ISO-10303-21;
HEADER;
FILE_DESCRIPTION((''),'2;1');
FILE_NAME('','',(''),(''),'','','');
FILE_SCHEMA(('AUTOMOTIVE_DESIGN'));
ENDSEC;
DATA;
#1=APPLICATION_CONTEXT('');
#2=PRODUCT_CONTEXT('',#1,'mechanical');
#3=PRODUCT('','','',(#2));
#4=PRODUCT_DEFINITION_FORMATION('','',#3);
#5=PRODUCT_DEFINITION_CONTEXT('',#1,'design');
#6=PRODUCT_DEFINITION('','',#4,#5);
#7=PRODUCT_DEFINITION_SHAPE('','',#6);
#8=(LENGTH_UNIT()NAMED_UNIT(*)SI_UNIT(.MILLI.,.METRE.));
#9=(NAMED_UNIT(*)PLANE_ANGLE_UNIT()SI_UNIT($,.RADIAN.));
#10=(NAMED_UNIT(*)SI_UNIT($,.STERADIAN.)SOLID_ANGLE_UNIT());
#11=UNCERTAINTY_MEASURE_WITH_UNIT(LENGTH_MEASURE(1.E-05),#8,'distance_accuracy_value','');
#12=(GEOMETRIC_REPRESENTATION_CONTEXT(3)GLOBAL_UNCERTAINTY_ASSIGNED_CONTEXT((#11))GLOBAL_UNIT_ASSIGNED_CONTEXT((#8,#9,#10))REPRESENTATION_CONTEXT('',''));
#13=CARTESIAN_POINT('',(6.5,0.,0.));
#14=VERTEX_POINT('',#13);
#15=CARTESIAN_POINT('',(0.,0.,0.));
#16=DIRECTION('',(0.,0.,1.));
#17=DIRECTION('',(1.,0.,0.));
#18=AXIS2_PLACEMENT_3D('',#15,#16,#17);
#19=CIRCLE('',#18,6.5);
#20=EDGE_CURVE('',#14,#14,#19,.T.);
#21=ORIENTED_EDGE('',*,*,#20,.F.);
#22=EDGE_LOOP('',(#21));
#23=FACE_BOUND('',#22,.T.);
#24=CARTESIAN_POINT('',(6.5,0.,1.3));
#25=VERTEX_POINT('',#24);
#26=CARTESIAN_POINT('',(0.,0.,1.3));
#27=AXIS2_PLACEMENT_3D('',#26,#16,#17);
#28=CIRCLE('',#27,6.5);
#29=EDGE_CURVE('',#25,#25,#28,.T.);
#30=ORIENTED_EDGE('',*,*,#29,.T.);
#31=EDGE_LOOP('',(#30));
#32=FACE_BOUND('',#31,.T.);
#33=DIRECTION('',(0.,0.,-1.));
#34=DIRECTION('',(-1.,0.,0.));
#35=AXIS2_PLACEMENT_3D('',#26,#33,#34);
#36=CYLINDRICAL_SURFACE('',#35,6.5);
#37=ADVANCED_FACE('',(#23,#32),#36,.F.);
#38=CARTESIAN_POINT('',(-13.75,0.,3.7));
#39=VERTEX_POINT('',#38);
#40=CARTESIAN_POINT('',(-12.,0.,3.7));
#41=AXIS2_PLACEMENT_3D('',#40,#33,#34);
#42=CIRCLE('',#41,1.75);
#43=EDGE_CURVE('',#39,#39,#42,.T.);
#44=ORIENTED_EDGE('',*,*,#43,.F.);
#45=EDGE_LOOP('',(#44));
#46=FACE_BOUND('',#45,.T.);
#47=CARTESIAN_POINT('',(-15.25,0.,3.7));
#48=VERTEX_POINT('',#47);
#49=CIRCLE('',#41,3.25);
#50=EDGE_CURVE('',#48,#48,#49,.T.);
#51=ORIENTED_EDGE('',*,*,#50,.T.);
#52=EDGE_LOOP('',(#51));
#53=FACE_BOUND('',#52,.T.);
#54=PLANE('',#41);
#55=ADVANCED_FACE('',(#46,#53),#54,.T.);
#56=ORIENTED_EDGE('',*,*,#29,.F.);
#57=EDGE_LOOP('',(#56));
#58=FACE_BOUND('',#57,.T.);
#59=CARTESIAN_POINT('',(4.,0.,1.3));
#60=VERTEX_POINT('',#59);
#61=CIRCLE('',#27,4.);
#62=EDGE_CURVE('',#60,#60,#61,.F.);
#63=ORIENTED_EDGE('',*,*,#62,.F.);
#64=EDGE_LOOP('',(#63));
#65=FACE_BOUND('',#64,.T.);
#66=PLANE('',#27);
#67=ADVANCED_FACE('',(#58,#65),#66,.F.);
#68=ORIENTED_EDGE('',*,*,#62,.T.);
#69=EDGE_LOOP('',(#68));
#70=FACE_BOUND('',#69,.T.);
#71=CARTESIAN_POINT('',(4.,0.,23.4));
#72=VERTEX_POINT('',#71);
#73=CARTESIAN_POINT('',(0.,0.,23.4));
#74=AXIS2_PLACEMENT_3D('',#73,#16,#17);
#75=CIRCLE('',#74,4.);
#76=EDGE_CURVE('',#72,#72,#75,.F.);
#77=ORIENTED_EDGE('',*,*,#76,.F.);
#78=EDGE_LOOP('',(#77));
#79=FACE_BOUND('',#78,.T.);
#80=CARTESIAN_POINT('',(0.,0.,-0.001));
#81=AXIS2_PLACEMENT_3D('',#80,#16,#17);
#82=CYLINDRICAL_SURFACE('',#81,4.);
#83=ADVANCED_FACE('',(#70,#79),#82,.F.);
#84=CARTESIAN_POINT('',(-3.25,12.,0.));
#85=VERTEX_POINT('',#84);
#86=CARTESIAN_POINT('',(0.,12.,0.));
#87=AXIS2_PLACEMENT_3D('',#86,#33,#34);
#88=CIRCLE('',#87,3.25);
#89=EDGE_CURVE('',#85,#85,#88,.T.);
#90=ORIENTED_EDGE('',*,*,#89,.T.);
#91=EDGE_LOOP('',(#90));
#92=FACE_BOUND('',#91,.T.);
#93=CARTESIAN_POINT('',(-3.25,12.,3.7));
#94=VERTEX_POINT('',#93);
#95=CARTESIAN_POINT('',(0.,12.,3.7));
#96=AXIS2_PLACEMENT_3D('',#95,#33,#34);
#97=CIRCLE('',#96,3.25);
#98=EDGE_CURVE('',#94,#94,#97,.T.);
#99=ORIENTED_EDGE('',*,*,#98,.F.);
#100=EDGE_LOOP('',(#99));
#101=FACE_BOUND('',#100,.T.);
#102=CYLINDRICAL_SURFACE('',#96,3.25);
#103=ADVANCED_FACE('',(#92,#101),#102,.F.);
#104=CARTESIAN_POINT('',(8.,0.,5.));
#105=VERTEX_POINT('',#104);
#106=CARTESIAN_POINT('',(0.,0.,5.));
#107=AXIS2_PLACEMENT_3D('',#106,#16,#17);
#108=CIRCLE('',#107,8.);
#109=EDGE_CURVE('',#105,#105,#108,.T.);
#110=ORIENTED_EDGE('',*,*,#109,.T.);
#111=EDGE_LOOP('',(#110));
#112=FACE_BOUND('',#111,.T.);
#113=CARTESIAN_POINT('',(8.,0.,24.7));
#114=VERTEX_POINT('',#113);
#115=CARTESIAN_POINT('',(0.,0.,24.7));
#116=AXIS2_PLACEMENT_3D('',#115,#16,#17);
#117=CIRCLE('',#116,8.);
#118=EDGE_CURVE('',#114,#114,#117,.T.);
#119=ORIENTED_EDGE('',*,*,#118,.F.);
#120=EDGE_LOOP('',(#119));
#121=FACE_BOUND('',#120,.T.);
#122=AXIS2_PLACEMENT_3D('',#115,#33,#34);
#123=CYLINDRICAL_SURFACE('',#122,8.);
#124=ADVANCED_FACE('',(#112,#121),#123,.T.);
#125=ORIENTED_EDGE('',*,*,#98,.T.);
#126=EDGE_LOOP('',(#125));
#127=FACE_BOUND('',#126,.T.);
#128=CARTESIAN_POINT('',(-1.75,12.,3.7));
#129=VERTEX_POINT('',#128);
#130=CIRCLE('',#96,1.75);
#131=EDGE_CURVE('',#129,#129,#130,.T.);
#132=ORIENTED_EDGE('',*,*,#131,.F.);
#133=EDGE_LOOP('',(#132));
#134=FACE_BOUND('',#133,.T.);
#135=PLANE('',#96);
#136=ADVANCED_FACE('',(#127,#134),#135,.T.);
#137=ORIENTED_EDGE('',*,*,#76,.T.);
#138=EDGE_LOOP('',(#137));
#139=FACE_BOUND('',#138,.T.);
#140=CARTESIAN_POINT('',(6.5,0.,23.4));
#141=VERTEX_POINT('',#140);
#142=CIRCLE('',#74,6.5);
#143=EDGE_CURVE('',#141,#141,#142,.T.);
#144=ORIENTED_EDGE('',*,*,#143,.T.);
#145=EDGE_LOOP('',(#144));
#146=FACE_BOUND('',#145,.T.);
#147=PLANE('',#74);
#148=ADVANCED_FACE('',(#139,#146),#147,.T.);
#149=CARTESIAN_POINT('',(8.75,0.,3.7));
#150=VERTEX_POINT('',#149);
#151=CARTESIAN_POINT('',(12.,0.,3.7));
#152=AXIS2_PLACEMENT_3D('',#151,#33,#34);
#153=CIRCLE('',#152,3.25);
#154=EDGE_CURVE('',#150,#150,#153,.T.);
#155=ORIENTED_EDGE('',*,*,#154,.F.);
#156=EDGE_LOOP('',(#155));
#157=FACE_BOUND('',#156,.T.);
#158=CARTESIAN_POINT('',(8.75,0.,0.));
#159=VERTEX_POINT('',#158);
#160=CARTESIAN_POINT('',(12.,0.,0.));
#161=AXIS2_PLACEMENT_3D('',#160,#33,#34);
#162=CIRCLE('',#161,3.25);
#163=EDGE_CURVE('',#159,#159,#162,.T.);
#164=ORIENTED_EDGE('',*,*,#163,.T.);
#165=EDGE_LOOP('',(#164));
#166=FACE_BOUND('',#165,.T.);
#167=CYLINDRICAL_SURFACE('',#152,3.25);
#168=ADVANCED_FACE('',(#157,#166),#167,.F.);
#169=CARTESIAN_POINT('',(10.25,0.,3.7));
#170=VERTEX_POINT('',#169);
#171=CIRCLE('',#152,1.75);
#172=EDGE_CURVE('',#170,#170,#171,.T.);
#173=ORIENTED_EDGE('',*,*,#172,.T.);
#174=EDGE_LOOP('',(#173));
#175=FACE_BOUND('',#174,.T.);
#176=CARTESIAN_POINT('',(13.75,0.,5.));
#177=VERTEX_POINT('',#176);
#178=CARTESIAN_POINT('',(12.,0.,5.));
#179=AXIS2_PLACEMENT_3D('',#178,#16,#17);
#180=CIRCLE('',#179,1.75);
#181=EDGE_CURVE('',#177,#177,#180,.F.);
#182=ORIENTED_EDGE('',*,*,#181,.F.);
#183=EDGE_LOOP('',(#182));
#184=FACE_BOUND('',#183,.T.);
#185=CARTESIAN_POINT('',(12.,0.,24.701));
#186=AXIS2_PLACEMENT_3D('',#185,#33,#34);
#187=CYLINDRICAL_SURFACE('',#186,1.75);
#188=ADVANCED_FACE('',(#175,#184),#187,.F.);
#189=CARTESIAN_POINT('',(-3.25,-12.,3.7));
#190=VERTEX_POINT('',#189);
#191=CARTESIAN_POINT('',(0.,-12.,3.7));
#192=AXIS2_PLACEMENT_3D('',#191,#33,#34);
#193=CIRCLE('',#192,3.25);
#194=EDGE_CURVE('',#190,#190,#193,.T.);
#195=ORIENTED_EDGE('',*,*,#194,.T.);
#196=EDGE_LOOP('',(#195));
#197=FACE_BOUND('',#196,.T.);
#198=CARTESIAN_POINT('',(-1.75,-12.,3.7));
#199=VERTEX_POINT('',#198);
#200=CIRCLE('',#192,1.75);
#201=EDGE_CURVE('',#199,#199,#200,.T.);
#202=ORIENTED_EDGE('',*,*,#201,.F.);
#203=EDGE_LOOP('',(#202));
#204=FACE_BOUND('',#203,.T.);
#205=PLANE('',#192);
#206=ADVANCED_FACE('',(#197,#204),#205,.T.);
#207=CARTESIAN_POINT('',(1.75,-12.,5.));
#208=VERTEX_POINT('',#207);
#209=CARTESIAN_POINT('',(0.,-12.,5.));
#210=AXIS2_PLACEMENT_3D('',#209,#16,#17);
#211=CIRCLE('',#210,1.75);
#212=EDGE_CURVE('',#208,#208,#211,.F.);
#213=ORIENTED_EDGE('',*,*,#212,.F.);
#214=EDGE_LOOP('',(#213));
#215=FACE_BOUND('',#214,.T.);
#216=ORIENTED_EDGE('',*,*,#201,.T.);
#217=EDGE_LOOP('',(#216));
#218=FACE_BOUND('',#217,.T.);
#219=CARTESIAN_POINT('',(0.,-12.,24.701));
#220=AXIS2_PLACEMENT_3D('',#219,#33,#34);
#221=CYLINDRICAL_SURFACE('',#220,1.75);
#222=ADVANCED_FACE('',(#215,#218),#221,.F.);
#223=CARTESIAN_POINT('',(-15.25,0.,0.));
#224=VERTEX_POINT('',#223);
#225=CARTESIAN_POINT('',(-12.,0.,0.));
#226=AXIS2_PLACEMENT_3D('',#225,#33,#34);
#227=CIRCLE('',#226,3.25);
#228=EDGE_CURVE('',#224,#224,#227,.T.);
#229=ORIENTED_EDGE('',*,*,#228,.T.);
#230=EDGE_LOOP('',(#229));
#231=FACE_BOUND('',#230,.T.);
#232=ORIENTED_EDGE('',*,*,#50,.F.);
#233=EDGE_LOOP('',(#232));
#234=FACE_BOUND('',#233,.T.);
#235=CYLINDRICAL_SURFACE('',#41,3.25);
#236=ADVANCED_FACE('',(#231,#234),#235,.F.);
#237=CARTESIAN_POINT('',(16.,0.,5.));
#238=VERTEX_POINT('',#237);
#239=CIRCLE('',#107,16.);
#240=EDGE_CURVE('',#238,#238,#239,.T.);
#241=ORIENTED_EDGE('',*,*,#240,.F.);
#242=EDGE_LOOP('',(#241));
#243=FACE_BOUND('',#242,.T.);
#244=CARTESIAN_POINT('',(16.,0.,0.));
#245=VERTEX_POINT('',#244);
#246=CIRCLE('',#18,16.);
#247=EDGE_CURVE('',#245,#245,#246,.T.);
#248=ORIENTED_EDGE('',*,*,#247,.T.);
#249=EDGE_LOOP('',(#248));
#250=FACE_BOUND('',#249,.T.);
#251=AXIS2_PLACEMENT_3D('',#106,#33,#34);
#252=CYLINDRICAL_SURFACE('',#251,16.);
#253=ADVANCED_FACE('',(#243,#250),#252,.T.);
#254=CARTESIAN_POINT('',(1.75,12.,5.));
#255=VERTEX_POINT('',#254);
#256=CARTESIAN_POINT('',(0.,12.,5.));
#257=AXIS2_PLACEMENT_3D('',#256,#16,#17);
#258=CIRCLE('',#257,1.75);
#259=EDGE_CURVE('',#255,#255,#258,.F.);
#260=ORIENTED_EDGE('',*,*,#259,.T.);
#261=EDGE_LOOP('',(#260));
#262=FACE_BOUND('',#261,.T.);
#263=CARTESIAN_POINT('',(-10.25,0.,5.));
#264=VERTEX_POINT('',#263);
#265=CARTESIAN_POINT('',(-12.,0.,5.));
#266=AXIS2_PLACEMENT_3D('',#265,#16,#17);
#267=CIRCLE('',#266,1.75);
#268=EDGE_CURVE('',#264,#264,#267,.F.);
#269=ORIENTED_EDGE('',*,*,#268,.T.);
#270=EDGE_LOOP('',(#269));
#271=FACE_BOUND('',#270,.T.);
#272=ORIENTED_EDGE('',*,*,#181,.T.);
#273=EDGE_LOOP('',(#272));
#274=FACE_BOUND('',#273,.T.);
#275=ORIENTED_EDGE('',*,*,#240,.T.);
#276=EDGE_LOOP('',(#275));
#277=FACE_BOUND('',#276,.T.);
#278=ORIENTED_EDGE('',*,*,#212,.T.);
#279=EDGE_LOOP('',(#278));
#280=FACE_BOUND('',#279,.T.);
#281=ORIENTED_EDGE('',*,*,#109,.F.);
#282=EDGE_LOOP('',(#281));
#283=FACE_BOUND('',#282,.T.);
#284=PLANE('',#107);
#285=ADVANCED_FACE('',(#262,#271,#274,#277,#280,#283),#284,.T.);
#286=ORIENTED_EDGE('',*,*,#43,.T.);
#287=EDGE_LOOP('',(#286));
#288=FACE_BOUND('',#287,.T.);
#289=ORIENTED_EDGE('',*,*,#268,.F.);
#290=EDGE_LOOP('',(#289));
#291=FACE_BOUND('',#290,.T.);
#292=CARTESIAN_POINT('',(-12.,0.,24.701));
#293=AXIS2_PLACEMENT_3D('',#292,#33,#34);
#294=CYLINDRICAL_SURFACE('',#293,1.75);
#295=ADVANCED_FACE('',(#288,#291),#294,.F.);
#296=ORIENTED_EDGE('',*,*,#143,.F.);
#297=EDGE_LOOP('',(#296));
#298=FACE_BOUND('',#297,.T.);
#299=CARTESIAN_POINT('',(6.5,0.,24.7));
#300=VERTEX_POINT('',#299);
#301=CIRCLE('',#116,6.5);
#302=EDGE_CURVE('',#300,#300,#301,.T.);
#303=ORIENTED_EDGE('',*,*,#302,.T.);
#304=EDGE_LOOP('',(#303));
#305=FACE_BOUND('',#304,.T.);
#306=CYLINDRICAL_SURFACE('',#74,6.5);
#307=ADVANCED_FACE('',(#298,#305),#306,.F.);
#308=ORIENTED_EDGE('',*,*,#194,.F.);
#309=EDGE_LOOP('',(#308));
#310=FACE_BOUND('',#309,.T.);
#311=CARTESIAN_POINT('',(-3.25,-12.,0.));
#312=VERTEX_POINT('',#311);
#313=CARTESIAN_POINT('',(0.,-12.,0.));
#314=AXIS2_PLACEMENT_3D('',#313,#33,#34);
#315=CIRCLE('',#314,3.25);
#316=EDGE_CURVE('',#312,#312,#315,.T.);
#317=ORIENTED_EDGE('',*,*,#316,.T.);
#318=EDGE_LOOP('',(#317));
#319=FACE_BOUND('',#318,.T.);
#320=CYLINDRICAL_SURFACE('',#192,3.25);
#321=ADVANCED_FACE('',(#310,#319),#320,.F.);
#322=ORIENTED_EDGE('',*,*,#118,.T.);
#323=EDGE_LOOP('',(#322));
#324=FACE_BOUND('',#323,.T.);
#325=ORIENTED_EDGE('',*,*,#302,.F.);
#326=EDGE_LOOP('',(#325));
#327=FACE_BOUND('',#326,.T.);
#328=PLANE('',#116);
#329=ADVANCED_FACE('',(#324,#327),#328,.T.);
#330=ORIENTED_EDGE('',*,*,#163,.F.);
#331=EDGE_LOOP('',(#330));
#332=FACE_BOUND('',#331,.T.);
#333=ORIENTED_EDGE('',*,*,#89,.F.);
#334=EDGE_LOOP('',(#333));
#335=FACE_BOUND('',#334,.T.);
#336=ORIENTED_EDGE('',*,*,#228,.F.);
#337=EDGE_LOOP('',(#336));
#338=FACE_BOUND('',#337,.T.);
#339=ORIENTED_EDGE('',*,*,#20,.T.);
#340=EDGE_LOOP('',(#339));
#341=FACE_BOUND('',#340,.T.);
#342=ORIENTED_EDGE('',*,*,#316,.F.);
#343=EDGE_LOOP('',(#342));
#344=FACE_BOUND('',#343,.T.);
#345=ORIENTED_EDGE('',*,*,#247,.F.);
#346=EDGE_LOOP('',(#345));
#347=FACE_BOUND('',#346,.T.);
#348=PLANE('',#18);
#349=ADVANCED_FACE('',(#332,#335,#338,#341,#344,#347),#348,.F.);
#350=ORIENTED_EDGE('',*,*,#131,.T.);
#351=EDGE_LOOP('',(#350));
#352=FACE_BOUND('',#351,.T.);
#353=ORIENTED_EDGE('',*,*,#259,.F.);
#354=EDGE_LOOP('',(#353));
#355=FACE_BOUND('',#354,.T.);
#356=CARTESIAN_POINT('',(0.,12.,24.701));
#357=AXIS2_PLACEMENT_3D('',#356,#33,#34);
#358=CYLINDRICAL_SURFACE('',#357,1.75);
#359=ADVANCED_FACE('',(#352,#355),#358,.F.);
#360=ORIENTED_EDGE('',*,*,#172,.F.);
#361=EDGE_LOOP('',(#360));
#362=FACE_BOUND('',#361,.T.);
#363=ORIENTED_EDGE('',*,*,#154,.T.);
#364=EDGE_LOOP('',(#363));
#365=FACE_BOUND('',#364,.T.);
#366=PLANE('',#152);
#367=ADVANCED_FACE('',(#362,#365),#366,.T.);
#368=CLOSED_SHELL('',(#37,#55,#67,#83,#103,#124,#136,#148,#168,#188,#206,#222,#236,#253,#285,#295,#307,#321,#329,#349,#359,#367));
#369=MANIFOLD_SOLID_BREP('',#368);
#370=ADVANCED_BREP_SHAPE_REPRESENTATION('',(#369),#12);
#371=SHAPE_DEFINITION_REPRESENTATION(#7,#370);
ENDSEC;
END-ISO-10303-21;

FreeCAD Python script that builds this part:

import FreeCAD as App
import Part
import Sketcher

V = App.Vector

doc = App.newDocument("Part")
params = doc.addObject("Spreadsheet::Sheet", "Params")
for row, (alias, value) in enumerate([
    ("sketch1_diameter", "32 mm"),
    ("pad1_length", "5 mm"),
    ("sketch2_diameter", "16 mm"),
    ("pad2_length", "19.7 mm"),
    ("sketch3_diameter", "8 mm"),
    ("sketch4_diameter", "3.5 mm"),
    ("sketch5_diameter", "3.5 mm"),
    ("sketch6_diameter", "3.5 mm"),
    ("sketch7_diameter", "3.5 mm"),
    ("sketch8_diameter", "6.5 mm"),
    ("sketch8_diameter2", "3.5 mm"),
    ("pocket6_length", "3.7 mm"),
    ("sketch9_diameter", "13 mm"),
    ("pocket7_length", "1.3 mm"),
    ("sketch10_diameter", "13 mm"),
    ("pocket8_length", "1.3 mm"),
], start=1):
    params.set(f"A{row}", alias)
    params.set(f"B{row}", "=" + value)
    params.setAlias(f"B{row}", alias)

body = doc.addObject("PartDesign::Body", "Body")

# Sketch on XY plane
sketch1 = doc.addObject("Sketcher::SketchObject", "Sketch")
body.addObject(sketch1)
sketch1.AttachmentSupport = (doc.XY_Plane, [""])
sketch1.MapMode = "FlatFace"
sketch1.addGeometry(Part.Circle(V(0, 0, 0), V(0, 0, 1), 16), False)
sketch1.addConstraint(Sketcher.Constraint("Coincident", 0, 3, -1, 1))
sketch1.addConstraint(Sketcher.Constraint("Diameter", 0, 32.0))
sketch1.setExpression("Constraints[1]", "Params.sketch1_diameter")
pad1 = doc.addObject("PartDesign::Pad", "Pad")
body.addObject(pad1)
pad1.Profile = sketch1
pad1.setExpression("Length", "Params.pad1_length")

# Sketch on XY plane
sketch2 = doc.addObject("Sketcher::SketchObject", "Sketch001")
body.addObject(sketch2)
sketch2.AttachmentSupport = (doc.XY_Plane, [""])
sketch2.MapMode = "FlatFace"
sketch2.AttachmentOffset = App.Placement(V(0, 0, 5), App.Rotation())
sketch2.addGeometry(Part.Circle(V(0, 0, 0), V(0, 0, 1), 8), False)
sketch2.addConstraint(Sketcher.Constraint("Coincident", 0, 3, -1, 1))
sketch2.addConstraint(Sketcher.Constraint("Diameter", 0, 16.0))
sketch2.setExpression("Constraints[1]", "Params.sketch2_diameter")
pad2 = doc.addObject("PartDesign::Pad", "Pad001")
body.addObject(pad2)
pad2.Profile = sketch2
pad2.setExpression("Length", "Params.pad2_length")

# Sketch on XY plane
sketch3 = doc.addObject("Sketcher::SketchObject", "Sketch002")
body.addObject(sketch3)
sketch3.AttachmentSupport = (doc.XY_Plane, [""])
sketch3.MapMode = "FlatFace"
sketch3.AttachmentOffset = App.Placement(V(0, 0, 24.7), App.Rotation())
sketch3.addGeometry(Part.Circle(V(0, 0, 0), V(0, 0, 1), 4), False)
sketch3.addConstraint(Sketcher.Constraint("Coincident", 0, 3, -1, 1))
sketch3.addConstraint(Sketcher.Constraint("Diameter", 0, 8.0))
sketch3.setExpression("Constraints[1]", "Params.sketch3_diameter")
pocket1 = doc.addObject("PartDesign::Pocket", "Pocket")
body.addObject(pocket1)
pocket1.Profile = sketch3
pocket1.Type = "UpToFirst"

# Sketch on XY plane
sketch4 = doc.addObject("Sketcher::SketchObject", "Sketch003")
body.addObject(sketch4)
sketch4.AttachmentSupport = (doc.XY_Plane, [""])
sketch4.MapMode = "FlatFace"
sketch4.addGeometry(Part.Circle(V(0, 12, 0), V(0, 0, 1), 1.75), False)
sketch4.addConstraint(Sketcher.Constraint("PointOnObject", 0, 3, -2))
sketch4.addConstraint(Sketcher.Constraint("Diameter", 0, 3.5))
sketch4.addConstraint(Sketcher.Constraint("DistanceY", -1, 1, 0, 3, 12.0))
sketch4.setExpression("Constraints[1]", "Params.sketch4_diameter")
pocket2 = doc.addObject("PartDesign::Pocket", "Pocket001")
body.addObject(pocket2)
pocket2.Profile = sketch4
pocket2.Type = "UpToFirst"
pocket2.Reversed = True

# Sketch on XY plane
sketch5 = doc.addObject("Sketcher::SketchObject", "Sketch004")
body.addObject(sketch5)
sketch5.AttachmentSupport = (doc.XY_Plane, [""])
sketch5.MapMode = "FlatFace"
sketch5.addGeometry(Part.Circle(V(-12, 0, 0), V(0, 0, 1), 1.75), False)
sketch5.addConstraint(Sketcher.Constraint("PointOnObject", 0, 3, -1))
sketch5.addConstraint(Sketcher.Constraint("Diameter", 0, 3.5))
sketch5.addConstraint(Sketcher.Constraint("DistanceX", 0, 3, -1, 1, 12.0))
sketch5.setExpression("Constraints[1]", "Params.sketch5_diameter")
pocket3 = doc.addObject("PartDesign::Pocket", "Pocket002")
body.addObject(pocket3)
pocket3.Profile = sketch5
pocket3.Type = "UpToFirst"
pocket3.Reversed = True

# Sketch on XY plane
sketch6 = doc.addObject("Sketcher::SketchObject", "Sketch005")
body.addObject(sketch6)
sketch6.AttachmentSupport = (doc.XY_Plane, [""])
sketch6.MapMode = "FlatFace"
sketch6.addGeometry(Part.Circle(V(0, -12, 0), V(0, 0, 1), 1.75), False)
sketch6.addConstraint(Sketcher.Constraint("PointOnObject", 0, 3, -2))
sketch6.addConstraint(Sketcher.Constraint("Diameter", 0, 3.5))
sketch6.addConstraint(Sketcher.Constraint("DistanceY", 0, 3, -1, 1, 12.0))
sketch6.setExpression("Constraints[1]", "Params.sketch6_diameter")
pocket4 = doc.addObject("PartDesign::Pocket", "Pocket003")
body.addObject(pocket4)
pocket4.Profile = sketch6
pocket4.Type = "UpToFirst"
pocket4.Reversed = True

# Sketch on XY plane
sketch7 = doc.addObject("Sketcher::SketchObject", "Sketch006")
body.addObject(sketch7)
sketch7.AttachmentSupport = (doc.XY_Plane, [""])
sketch7.MapMode = "FlatFace"
sketch7.addGeometry(Part.Circle(V(12, 0, 0), V(0, 0, 1), 1.75), False)
sketch7.addConstraint(Sketcher.Constraint("PointOnObject", 0, 3, -1))
sketch7.addConstraint(Sketcher.Constraint("Diameter", 0, 3.5))
sketch7.addConstraint(Sketcher.Constraint("DistanceX", -1, 1, 0, 3, 12.0))
sketch7.setExpression("Constraints[1]", "Params.sketch7_diameter")
pocket5 = doc.addObject("PartDesign::Pocket", "Pocket004")
body.addObject(pocket5)
pocket5.Profile = sketch7
pocket5.Type = "UpToFirst"
pocket5.Reversed = True

# Sketch on XY plane
sketch8 = doc.addObject("Sketcher::SketchObject", "Sketch007")
body.addObject(sketch8)
sketch8.AttachmentSupport = (doc.XY_Plane, [""])
sketch8.MapMode = "FlatFace"
sketch8.addGeometry(Part.Circle(V(0, 12, 0), V(0, 0, 1), 3.25), False)
sketch8.addGeometry(Part.Circle(V(0, 12, 0), V(0, 0, 1), 1.75), False)
sketch8.addGeometry(Part.Circle(V(-12, 0, 0), V(0, 0, 1), 3.25), False)
sketch8.addGeometry(Part.Circle(V(-12, 0, 0), V(0, 0, 1), 1.75), False)
sketch8.addGeometry(Part.Circle(V(0, -12, 0), V(0, 0, 1), 3.25), False)
sketch8.addGeometry(Part.Circle(V(0, -12, 0), V(0, 0, 1), 1.75), False)
sketch8.addGeometry(Part.Circle(V(12, 0, 0), V(0, 0, 1), 3.25), False)
sketch8.addGeometry(Part.Circle(V(12, 0, 0), V(0, 0, 1), 1.75), False)
sketch8.addConstraint(Sketcher.Constraint("Coincident", 1, 3, 0, 3))
sketch8.addConstraint(Sketcher.Constraint("Coincident", 3, 3, 2, 3))
sketch8.addConstraint(Sketcher.Constraint("Coincident", 5, 3, 4, 3))
sketch8.addConstraint(Sketcher.Constraint("Coincident", 7, 3, 6, 3))
sketch8.addConstraint(Sketcher.Constraint("Equal", 0, 2))
sketch8.addConstraint(Sketcher.Constraint("Equal", 1, 3))
sketch8.addConstraint(Sketcher.Constraint("Equal", 2, 4))
sketch8.addConstraint(Sketcher.Constraint("Equal", 3, 5))
sketch8.addConstraint(Sketcher.Constraint("Equal", 4, 6))
sketch8.addConstraint(Sketcher.Constraint("Equal", 5, 7))
sketch8.addConstraint(Sketcher.Constraint("Symmetric", 0, 3, 4, 3, -1, 1))
sketch8.addConstraint(Sketcher.Constraint("Symmetric", 2, 3, 6, 3, -1, 1))
sketch8.addConstraint(Sketcher.Constraint("PointOnObject", 0, 3, -2))
sketch8.addConstraint(Sketcher.Constraint("PointOnObject", 2, 3, -1))
sketch8.addConstraint(Sketcher.Constraint("Diameter", 0, 6.5))
sketch8.addConstraint(Sketcher.Constraint("Diameter", 1, 3.5))
sketch8.addConstraint(Sketcher.Constraint("DistanceY", -1, 1, 0, 3, 12.0))
sketch8.addConstraint(Sketcher.Constraint("DistanceX", 2, 3, -1, 1, 12.0))
sketch8.setExpression("Constraints[14]", "Params.sketch8_diameter")
sketch8.setExpression("Constraints[15]", "Params.sketch8_diameter2")
pocket6 = doc.addObject("PartDesign::Pocket", "Pocket005")
body.addObject(pocket6)
pocket6.Profile = sketch8
pocket6.setExpression("Length", "Params.pocket6_length")
pocket6.Reversed = True

# Sketch on XY plane
sketch9 = doc.addObject("Sketcher::SketchObject", "Sketch008")
body.addObject(sketch9)
sketch9.AttachmentSupport = (doc.XY_Plane, [""])
sketch9.MapMode = "FlatFace"
sketch9.AttachmentOffset = App.Placement(V(0, 0, 24.7), App.Rotation())
sketch9.addGeometry(Part.Circle(V(0, 0, 0), V(0, 0, 1), 6.5), False)
sketch9.addConstraint(Sketcher.Constraint("Coincident", 0, 3, -1, 1))
sketch9.addConstraint(Sketcher.Constraint("Diameter", 0, 13.0))
sketch9.setExpression("Constraints[1]", "Params.sketch9_diameter")
pocket7 = doc.addObject("PartDesign::Pocket", "Pocket006")
body.addObject(pocket7)
pocket7.Profile = sketch9
pocket7.setExpression("Length", "Params.pocket7_length")

# Sketch on XY plane
sketch10 = doc.addObject("Sketcher::SketchObject", "Sketch009")
body.addObject(sketch10)
sketch10.AttachmentSupport = (doc.XY_Plane, [""])
sketch10.MapMode = "FlatFace"
sketch10.AttachmentOffset = App.Placement(V(0, 0, 1.3), App.Rotation())
sketch10.addGeometry(Part.Circle(V(0, 0, 0), V(0, 0, 1), 6.5), False)
sketch10.addConstraint(Sketcher.Constraint("Coincident", 0, 3, -1, 1))
sketch10.addConstraint(Sketcher.Constraint("Diameter", 0, 13.0))
sketch10.setExpression("Constraints[1]", "Params.sketch10_diameter")
pocket8 = doc.addObject("PartDesign::Pocket", "Pocket007")
body.addObject(pocket8)
pocket8.Profile = sketch10
pocket8.setExpression("Length", "Params.pocket8_length")

doc.recompute()
